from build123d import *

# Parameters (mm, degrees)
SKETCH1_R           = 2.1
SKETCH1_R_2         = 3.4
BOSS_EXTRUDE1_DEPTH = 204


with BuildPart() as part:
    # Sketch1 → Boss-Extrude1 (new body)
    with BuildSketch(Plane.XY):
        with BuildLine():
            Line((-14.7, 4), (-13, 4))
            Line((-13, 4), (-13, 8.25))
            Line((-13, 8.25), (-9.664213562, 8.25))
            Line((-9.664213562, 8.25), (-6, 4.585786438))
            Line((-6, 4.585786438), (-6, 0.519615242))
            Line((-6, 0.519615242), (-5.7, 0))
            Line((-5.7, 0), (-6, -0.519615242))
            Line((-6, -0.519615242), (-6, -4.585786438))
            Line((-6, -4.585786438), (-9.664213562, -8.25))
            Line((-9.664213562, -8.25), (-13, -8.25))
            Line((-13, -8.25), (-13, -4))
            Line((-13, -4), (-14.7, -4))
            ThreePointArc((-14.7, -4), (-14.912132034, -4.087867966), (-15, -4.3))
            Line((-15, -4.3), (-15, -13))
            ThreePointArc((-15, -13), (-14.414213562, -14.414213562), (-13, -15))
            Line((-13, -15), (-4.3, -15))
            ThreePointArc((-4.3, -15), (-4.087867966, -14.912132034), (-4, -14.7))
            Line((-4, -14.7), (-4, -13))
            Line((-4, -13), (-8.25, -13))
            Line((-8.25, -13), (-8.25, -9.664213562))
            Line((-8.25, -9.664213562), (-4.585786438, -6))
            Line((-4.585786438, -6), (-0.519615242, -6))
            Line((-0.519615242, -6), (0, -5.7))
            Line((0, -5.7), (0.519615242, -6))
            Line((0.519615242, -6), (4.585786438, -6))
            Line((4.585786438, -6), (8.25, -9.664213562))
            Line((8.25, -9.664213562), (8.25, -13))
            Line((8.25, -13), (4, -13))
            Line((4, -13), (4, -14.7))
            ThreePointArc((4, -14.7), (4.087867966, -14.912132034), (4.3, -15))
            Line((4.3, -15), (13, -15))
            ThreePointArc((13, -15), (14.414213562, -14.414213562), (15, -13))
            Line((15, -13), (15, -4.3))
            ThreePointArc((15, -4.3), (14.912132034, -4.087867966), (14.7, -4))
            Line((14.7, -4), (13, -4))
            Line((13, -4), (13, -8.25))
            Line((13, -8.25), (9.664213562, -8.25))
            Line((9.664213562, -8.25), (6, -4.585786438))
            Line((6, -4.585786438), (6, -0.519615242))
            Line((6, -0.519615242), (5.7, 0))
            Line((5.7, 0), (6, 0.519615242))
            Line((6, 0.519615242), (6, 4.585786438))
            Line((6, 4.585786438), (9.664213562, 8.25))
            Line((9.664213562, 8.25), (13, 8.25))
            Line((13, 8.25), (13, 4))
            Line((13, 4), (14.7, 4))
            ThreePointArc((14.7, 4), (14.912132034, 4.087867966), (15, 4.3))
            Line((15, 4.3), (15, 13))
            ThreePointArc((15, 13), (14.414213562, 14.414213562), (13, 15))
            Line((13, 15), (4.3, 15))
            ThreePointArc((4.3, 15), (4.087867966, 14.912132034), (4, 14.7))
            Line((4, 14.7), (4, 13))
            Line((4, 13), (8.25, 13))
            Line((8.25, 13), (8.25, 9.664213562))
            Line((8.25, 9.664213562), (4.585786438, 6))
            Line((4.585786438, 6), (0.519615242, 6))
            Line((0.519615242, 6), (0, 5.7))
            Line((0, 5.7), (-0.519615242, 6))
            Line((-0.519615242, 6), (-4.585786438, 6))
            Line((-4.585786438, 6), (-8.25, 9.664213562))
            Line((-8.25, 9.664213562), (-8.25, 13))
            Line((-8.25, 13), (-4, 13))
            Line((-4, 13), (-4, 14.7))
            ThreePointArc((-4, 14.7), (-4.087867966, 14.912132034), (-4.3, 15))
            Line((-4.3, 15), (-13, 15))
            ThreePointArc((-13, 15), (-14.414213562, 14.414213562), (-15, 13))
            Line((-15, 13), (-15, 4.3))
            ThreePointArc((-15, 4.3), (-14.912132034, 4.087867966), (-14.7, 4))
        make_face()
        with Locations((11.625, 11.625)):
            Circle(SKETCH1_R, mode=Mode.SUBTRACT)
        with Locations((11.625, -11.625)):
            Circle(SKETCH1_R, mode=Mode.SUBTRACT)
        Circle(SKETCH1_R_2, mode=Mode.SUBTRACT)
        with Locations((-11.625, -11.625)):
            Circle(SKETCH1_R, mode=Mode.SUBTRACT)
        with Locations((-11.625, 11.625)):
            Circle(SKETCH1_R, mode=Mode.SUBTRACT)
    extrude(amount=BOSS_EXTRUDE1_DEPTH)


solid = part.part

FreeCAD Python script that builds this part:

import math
import FreeCAD as App
import Part
import Sketcher

V = App.Vector
Q = App.Units.Quantity

doc = App.newDocument("Part")
body = doc.addObject("PartDesign::Body", "Body")

sketch1 = body.newObject("Sketcher::SketchObject", "Sketch")
sketch1.AttachmentSupport = (doc.getObject("XY_Plane"), [""])
sketch1.MapMode = "FlatFace"
sketch1.addGeometry([
    Part.LineSegment(V(-14.7, 4, 0), V(-13, 4, 0)),
    Part.LineSegment(V(-13, 4, 0), V(-13, 8.25, 0)),
    Part.LineSegment(V(-13, 8.25, 0), V(-9.664214, 8.25, 0)),
    Part.LineSegment(V(-9.664214, 8.25, 0), V(-6, 4.585786, 0)),
    Part.LineSegment(V(-6, 4.585786, 0), V(-6, 0.519615, 0)),
    Part.LineSegment(V(-6, 0.519615, 0), V(-5.7, 0, 0)),
    Part.LineSegment(V(-5.7, 0, 0), V(-6, -0.519615, 0)),
    Part.LineSegment(V(-6, -0.519615, 0), V(-6, -4.585786, 0)),
    Part.LineSegment(V(-6, -4.585786, 0), V(-9.664214, -8.25, 0)),
    Part.LineSegment(V(-9.664214, -8.25, 0), V(-13, -8.25, 0)),
    Part.LineSegment(V(-13, -8.25, 0), V(-13, -4, 0)),
    Part.LineSegment(V(-13, -4, 0), V(-14.7, -4, 0)),
    Part.ArcOfCircle(Part.Circle(V(-14.7, -4.3, 0), V(0, 0, 1), 0.3), math.radians(90), math.radians(180)),
    Part.LineSegment(V(-15, -4.3, 0), V(-15, -13, 0)),
    Part.ArcOfCircle(Part.Circle(V(-13, -13, 0), V(0, 0, 1), 2), math.radians(-180), math.radians(-90)),
    Part.LineSegment(V(-13, -15, 0), V(-4.3, -15, 0)),
    Part.ArcOfCircle(Part.Circle(V(-4.3, -14.7, 0), V(0, 0, 1), 0.3), math.radians(-90), math.radians(0)),
    Part.LineSegment(V(-4, -14.7, 0), V(-4, -13, 0)),
    Part.LineSegment(V(-4, -13, 0), V(-8.25, -13, 0)),
    Part.LineSegment(V(-8.25, -13, 0), V(-8.25, -9.664214, 0)),
    Part.LineSegment(V(-8.25, -9.664214, 0), V(-4.585786, -6, 0)),
    Part.LineSegment(V(-4.585786, -6, 0), V(-0.519615, -6, 0)),
    Part.LineSegment(V(-0.519615, -6, 0), V(0, -5.7, 0)),
    Part.LineSegment(V(0, -5.7, 0), V(0.519615, -6, 0)),
    Part.LineSegment(V(0.519615, -6, 0), V(4.585786, -6, 0)),
    Part.LineSegment(V(4.585786, -6, 0), V(8.25, -9.664214, 0)),
    Part.LineSegment(V(8.25, -9.664214, 0), V(8.25, -13, 0)),
    Part.LineSegment(V(8.25, -13, 0), V(4, -13, 0)),
    Part.LineSegment(V(4, -13, 0), V(4, -14.7, 0)),
    Part.ArcOfCircle(Part.Circle(V(4.3, -14.7, 0), V(0, 0, 1), 0.3), math.radians(-180), math.radians(-90)),
    Part.LineSegment(V(4.3, -15, 0), V(13, -15, 0)),
    Part.ArcOfCircle(Part.Circle(V(13, -13, 0), V(0, 0, 1), 2), math.radians(-90), math.radians(0)),
    Part.LineSegment(V(15, -13, 0), V(15, -4.3, 0)),
    Part.ArcOfCircle(Part.Circle(V(14.7, -4.3, 0), V(0, 0, 1), 0.3), math.radians(0), math.radians(90)),
    Part.LineSegment(V(14.7, -4, 0), V(13, -4, 0)),
    Part.LineSegment(V(13, -4, 0), V(13, -8.25, 0)),
    Part.LineSegment(V(13, -8.25, 0), V(9.664214, -8.25, 0)),
    Part.LineSegment(V(9.664214, -8.25, 0), V(6, -4.585786, 0)),
    Part.LineSegment(V(6, -4.585786, 0), V(6, -0.519615, 0)),
    Part.LineSegment(V(6, -0.519615, 0), V(5.7, 0, 0)),
    Part.LineSegment(V(5.7, 0, 0), V(6, 0.519615, 0)),
    Part.LineSegment(V(6, 0.519615, 0), V(6, 4.585786, 0)),
    Part.LineSegment(V(6, 4.585786, 0), V(9.664214, 8.25, 0)),
    Part.LineSegment(V(9.664214, 8.25, 0), V(13, 8.25, 0)),
    Part.LineSegment(V(13, 8.25, 0), V(13, 4, 0)),
    Part.LineSegment(V(13, 4, 0), V(14.7, 4, 0)),
    Part.ArcOfCircle(Part.Circle(V(14.7, 4.3, 0), V(0, 0, 1), 0.3), math.radians(-90), math.radians(0)),
    Part.LineSegment(V(15, 4.3, 0), V(15, 13, 0)),
    Part.ArcOfCircle(Part.Circle(V(13, 13, 0), V(0, 0, 1), 2), math.radians(0), math.radians(90)),
    Part.LineSegment(V(13, 15, 0), V(4.3, 15, 0)),
    Part.ArcOfCircle(Part.Circle(V(4.3, 14.7, 0), V(0, 0, 1), 0.3), math.radians(90), math.radians(180)),
    Part.LineSegment(V(4, 14.7, 0), V(4, 13, 0)),
    Part.LineSegment(V(4, 13, 0), V(8.25, 13, 0)),
    Part.LineSegment(V(8.25, 13, 0), V(8.25, 9.664214, 0)),
    Part.LineSegment(V(8.25, 9.664214, 0), V(4.585786, 6, 0)),
    Part.LineSegment(V(4.585786, 6, 0), V(0.519615, 6, 0)),
    Part.LineSegment(V(0.519615, 6, 0), V(0, 5.7, 0)),
    Part.LineSegment(V(0, 5.7, 0), V(-0.519615, 6, 0)),
    Part.LineSegment(V(-0.519615, 6, 0), V(-4.585786, 6, 0)),
    Part.LineSegment(V(-4.585786, 6, 0), V(-8.25, 9.664214, 0)),
    Part.LineSegment(V(-8.25, 9.664214, 0), V(-8.25, 13, 0)),
    Part.LineSegment(V(-8.25, 13, 0), V(-4, 13, 0)),
    Part.LineSegment(V(-4, 13, 0), V(-4, 14.7, 0)),
    Part.ArcOfCircle(Part.Circle(V(-4.3, 14.7, 0), V(0, 0, 1), 0.3), math.radians(0), math.radians(90)),
    Part.LineSegment(V(-4.3, 15, 0), V(-13, 15, 0)),
    Part.ArcOfCircle(Part.Circle(V(-13, 13, 0), V(0, 0, 1), 2), math.radians(90), math.radians(180)),
    Part.LineSegment(V(-15, 13, 0), V(-15, 4.3, 0)),
    Part.ArcOfCircle(Part.Circle(V(-14.7, 4.3, 0), V(0, 0, 1), 0.3), math.radians(-180), math.radians(-90)),
    Part.Circle(V(-11.625, -11.625, 0), V(0, 0, 1), 2.1),
    Part.Circle(V(11.625, -11.625, 0), V(0, 0, 1), 2.1),
    Part.Circle(V(-11.625, 11.625, 0), V(0, 0, 1), 2.1),
    Part.Circle(V(0, 0, 0), V(0, 0, 1), 3.4),
    Part.Circle(V(11.625, 11.625, 0), V(0, 0, 1), 2.1),
], False)
sketch1.addConstraint([
    Sketcher.Constraint("Coincident", 0, 2, 1, 1),
    Sketcher.Constraint("Coincident", 1, 2, 2, 1),
    Sketcher.Constraint("Coincident", 2, 2, 3, 1),
    Sketcher.Constraint("Coincident", 3, 2, 4, 1),
    Sketcher.Constraint("Coincident", 4, 2, 5, 1),
    Sketcher.Constraint("Coincident", 5, 2, 6, 1),
    Sketcher.Constraint("Coincident", 6, 2, 7, 1),
    Sketcher.Constraint("Coincident", 7, 2, 8, 1),
    Sketcher.Constraint("Coincident", 8, 2, 9, 1),
    Sketcher.Constraint("Coincident", 9, 2, 10, 1),
    Sketcher.Constraint("Coincident", 10, 2, 11, 1),
    Sketcher.Constraint("Tangent", 11, 2, 12, 1),
    Sketcher.Constraint("Tangent", 12, 2, 13, 1),
    Sketcher.Constraint("Tangent", 13, 2, 14, 1),
    Sketcher.Constraint("Tangent", 14, 2, 15, 1),
    Sketcher.Constraint("Tangent", 15, 2, 16, 1),
    Sketcher.Constraint("Tangent", 16, 2, 17, 1),
    Sketcher.Constraint("Coincident", 17, 2, 18, 1),
    Sketcher.Constraint("Coincident", 18, 2, 19, 1),
    Sketcher.Constraint("Coincident", 19, 2, 20, 1),
    Sketcher.Constraint("Coincident", 20, 2, 21, 1),
    Sketcher.Constraint("Coincident", 21, 2, 22, 1),
    Sketcher.Constraint("Coincident", 22, 2, 23, 1),
    Sketcher.Constraint("Coincident", 23, 2, 24, 1),
    Sketcher.Constraint("Coincident", 24, 2, 25, 1),
    Sketcher.Constraint("Coincident", 25, 2, 26, 1),
    Sketcher.Constraint("Coincident", 26, 2, 27, 1),
    Sketcher.Constraint("Coincident", 27, 2, 28, 1),
    Sketcher.Constraint("Tangent", 28, 2, 29, 1),
    Sketcher.Constraint("Tangent", 29, 2, 30, 1),
    Sketcher.Constraint("Tangent", 30, 2, 31, 1),
    Sketcher.Constraint("Tangent", 31, 2, 32, 1),
    Sketcher.Constraint("Tangent", 32, 2, 33, 1),
    Sketcher.Constraint("Tangent", 33, 2, 34, 1),
    Sketcher.Constraint("Coincident", 34, 2, 35, 1),
    Sketcher.Constraint("Coincident", 35, 2, 36, 1),
    Sketcher.Constraint("Coincident", 36, 2, 37, 1),
    Sketcher.Constraint("Coincident", 37, 2, 38, 1),
    Sketcher.Constraint("Coincident", 38, 2, 39, 1),
    Sketcher.Constraint("Coincident", 39, 2, 40, 1),
    Sketcher.Constraint("Coincident", 40, 2, 41, 1),
    Sketcher.Constraint("Coincident", 41, 2, 42, 1),
    Sketcher.Constraint("Coincident", 42, 2, 43, 1),
    Sketcher.Constraint("Coincident", 43, 2, 44, 1),
    Sketcher.Constraint("Coincident", 44, 2, 45, 1),
    Sketcher.Constraint("Tangent", 45, 2, 46, 1),
    Sketcher.Constraint("Tangent", 46, 2, 47, 1),
    Sketcher.Constraint("Tangent", 47, 2, 48, 1),
    Sketcher.Constraint("Tangent", 48, 2, 49, 1),
    Sketcher.Constraint("Tangent", 49, 2, 50, 1),
    Sketcher.Constraint("Tangent", 50, 2, 51, 1),
    Sketcher.Constraint("Coincident", 51, 2, 52, 1),
    Sketcher.Constraint("Coincident", 52, 2, 53, 1),
    Sketcher.Constraint("Coincident", 53, 2, 54, 1),
    Sketcher.Constraint("Coincident", 54, 2, 55, 1),
    Sketcher.Constraint("Coincident", 55, 2, 56, 1),
    Sketcher.Constraint("Coincident", 56, 2, 57, 1),
    Sketcher.Constraint("Coincident", 57, 2, 58, 1),
    Sketcher.Constraint("Coincident", 58, 2, 59, 1),
    Sketcher.Constraint("Coincident", 59, 2, 60, 1),
    Sketcher.Constraint("Coincident", 60, 2, 61, 1),
    Sketcher.Constraint("Coincident", 61, 2, 62, 1),
    Sketcher.Constraint("Tangent", 62, 2, 63, 1),
    Sketcher.Constraint("Tangent", 63, 2, 64, 1),
    Sketcher.Constraint("Tangent", 64, 2, 65, 1),
    Sketcher.Constraint("Tangent", 65, 2, 66, 1),
    Sketcher.Constraint("Tangent", 66, 2, 67, 1),
    Sketcher.Constraint("Tangent", 67, 2, 0, 1),
    Sketcher.Constraint("Horizontal", 0),
    Sketcher.Constraint("Vertical", 1),
    Sketcher.Constraint("Horizontal", 2),
    Sketcher.Constraint("Vertical", 4),
    Sketcher.Constraint("Vertical", 7),
    Sketcher.Constraint("Horizontal", 9),
    Sketcher.Constraint("Vertical", 10),
    Sketcher.Constraint("Horizontal", 11),
    Sketcher.Constraint("Vertical", 13),
    Sketcher.Constraint("Horizontal", 15),
    Sketcher.Constraint("Vertical", 17),
    Sketcher.Constraint("Horizontal", 18),
    Sketcher.Constraint("Vertical", 19),
    Sketcher.Constraint("Horizontal", 21),
    Sketcher.Constraint("Horizontal", 24),
    Sketcher.Constraint("Vertical", 26),
    Sketcher.Constraint("Horizontal", 27),
    Sketcher.Constraint("Vertical", 28),
    Sketcher.Constraint("Horizontal", 30),
    Sketcher.Constraint("Vertical", 32),
    Sketcher.Constraint("Horizontal", 34),
    Sketcher.Constraint("Vertical", 35),
    Sketcher.Constraint("Horizontal", 36),
    Sketcher.Constraint("Vertical", 38),
    Sketcher.Constraint("Vertical", 41),
    Sketcher.Constraint("Horizontal", 43),
    Sketcher.Constraint("Vertical", 44),
    Sketcher.Constraint("Horizontal", 45),
    Sketcher.Constraint("Vertical", 47),
    Sketcher.Constraint("Horizontal", 49),
    Sketcher.Constraint("Vertical", 51),
    Sketcher.Constraint("Horizontal", 52),
    Sketcher.Constraint("Vertical", 53),
    Sketcher.Constraint("Horizontal", 55),
    Sketcher.Constraint("Horizontal", 58),
    Sketcher.Constraint("Vertical", 60),
    Sketcher.Constraint("Horizontal", 61),
    Sketcher.Constraint("Vertical", 62),
    Sketcher.Constraint("Horizontal", 64),
    Sketcher.Constraint("Vertical", 66),
    Sketcher.Constraint("Coincident", 71, 3, -1, 1),
    Sketcher.Constraint("Equal", 12, 16),
    Sketcher.Constraint("Equal", 16, 29),
    Sketcher.Constraint("Equal", 14, 31),
    Sketcher.Constraint("Equal", 29, 33),
    Sketcher.Constraint("Equal", 33, 46),
    Sketcher.Constraint("Equal", 31, 48),
    Sketcher.Constraint("Equal", 46, 50),
    Sketcher.Constraint("Equal", 50, 63),
    Sketcher.Constraint("Equal", 48, 65),
    Sketcher.Constraint("Equal", 63, 67),
    Sketcher.Constraint("Equal", 68, 69),
    Sketcher.Constraint("Equal", 69, 70),
    Sketcher.Constraint("Equal", 70, 72),
    Sketcher.Constraint("Symmetric", 12, 3, 46, 3, -1, 1),
    Sketcher.Constraint("Symmetric", 16, 3, 50, 3, -1, 1),
    Sketcher.Constraint("Symmetric", 29, 3, 63, 3, -1, 1),
    Sketcher.Constraint("Symmetric", 33, 3, 67, 3, -1, 1),
    Sketcher.Constraint("Symmetric", 69, 3, 70, 3, -1, 1),
    Sketcher.Constraint("Symmetric", 68, 3, 72, 3, -1, 1),
    Sketcher.Constraint("Symmetric", 1, 2, 35, 2, -1, 1),
    Sketcher.Constraint("Symmetric", 3, 2, 37, 2, -1, 1),
    Sketcher.Constraint("Symmetric", 5, 2, 39, 2, -1, 1),
    Sketcher.Constraint("Symmetric", 6, 2, 40, 2, -1, 1),
    Sketcher.Constraint("Symmetric", 8, 2, 42, 2, -1, 1),
    Sketcher.Constraint("Symmetric", 18, 2, 52, 2, -1, 1),
    Sketcher.Constraint("Symmetric", 20, 2, 54, 2, -1, 1),
    Sketcher.Constraint("Symmetric", 22, 2, 56, 2, -1, 1),
    Sketcher.Constraint("Symmetric", 23, 2, 57, 2, -1, 1),
    Sketcher.Constraint("Symmetric", 25, 2, 59, 2, -1, 1),
    Sketcher.Constraint("Symmetric", 16, 3, 29, 3, -2),
    Sketcher.Constraint("Symmetric", 12, 3, 33, 3, -2),
    Sketcher.Constraint("Symmetric", 68, 3, 69, 3, -2),
    Sketcher.Constraint("Symmetric", 21, 2, 23, 2, -2),
    Sketcher.Constraint("Symmetric", 19, 2, 25, 2, -2),
    Sketcher.Constraint("Symmetric", 9, 2, 35, 2, -2),
    Sketcher.Constraint("Symmetric", 7, 2, 37, 2, -2),
    Sketcher.Constraint("PointOnObject", 5, 2, -1),
    Sketcher.Constraint("PointOnObject", 22, 2, -2),
    Sketcher.Constraint("Perpendicular", 3, 8),
    Sketcher.Constraint("Parallel", 8, 20),
    Sketcher.Constraint("Perpendicular", 5, 22),
    Sketcher.Constraint("Perpendicular", 6, 23),
    Sketcher.Constraint("Perpendicular", 20, 25),
    Sketcher.Constraint("Parallel", 25, 37),
    Sketcher.Constraint("Perpendicular", 22, 39),
    Sketcher.Constraint("Perpendicular", 37, 42),
    Sketcher.Constraint("Parallel", 42, 54),
    Sketcher.Constraint("Perpendicular", 39, 56),
    Sketcher.Constraint("Perpendicular", 54, 59),
    Sketcher.Constraint("Horizontal", 13, 2, 17, 2),
    Sketcher.Constraint("Horizontal", 18, 2, 26, 2),
    Sketcher.Constraint("Horizontal", 52, 2, 60, 2),
    Sketcher.Constraint("Vertical", 65, 3, 0, 2),
    Sketcher.Constraint("Vertical", 2, 2, 8, 2),
    Sketcher.Constraint("Vertical", 35, 2, 43, 2),
    Sketcher.Constraint("Equal", 61, 1),
    Sketcher.Constraint("Equal", 58, 4),
    Sketcher.Constraint("Equal", 64, 13),
    Sketcher.Constraint("Equal", 43, 19),
    Sketcher.Constraint("Equal", 8, 20),
    Sketcher.Constraint("Equal", 6, 22),
    Sketcher.Constraint("Radius", 14, 2.0),
    Sketcher.Constraint("Diameter", 68, 4.2),
    Sketcher.Constraint("Diameter", 71, 6.8),
    Sketcher.Constraint("Radius", 12, 0.3),
    Sketcher.Constraint("Angle", 5, Q("-60 deg")),
    Sketcher.Constraint("DistanceX", 15, 1, 15, 2, 8.7),
    Sketcher.Constraint("DistanceX", 14, 3, -1, 1, 13.0),
    Sketcher.Constraint("DistanceX", 3, 2, -1, 1, 6.0),
    Sketcher.Constraint("Distance", 5, 0.6),
    Sketcher.Constraint("DistanceX", 18, 2, 18, 1, 4.25),
    Sketcher.Constraint("DistanceX", 68, 3, -1, 1, 11.625),
    Sketcher.Constraint("DistanceY", 68, 3, -1, 1, 11.625),
    Sketcher.Constraint("DistanceX", 21, 1, 21, 2, 4.066171),
])
pad1 = body.newObject("PartDesign::Pad", "Pad")
pad1.Profile = sketch1
pad1.Length = 204

doc.recompute()
